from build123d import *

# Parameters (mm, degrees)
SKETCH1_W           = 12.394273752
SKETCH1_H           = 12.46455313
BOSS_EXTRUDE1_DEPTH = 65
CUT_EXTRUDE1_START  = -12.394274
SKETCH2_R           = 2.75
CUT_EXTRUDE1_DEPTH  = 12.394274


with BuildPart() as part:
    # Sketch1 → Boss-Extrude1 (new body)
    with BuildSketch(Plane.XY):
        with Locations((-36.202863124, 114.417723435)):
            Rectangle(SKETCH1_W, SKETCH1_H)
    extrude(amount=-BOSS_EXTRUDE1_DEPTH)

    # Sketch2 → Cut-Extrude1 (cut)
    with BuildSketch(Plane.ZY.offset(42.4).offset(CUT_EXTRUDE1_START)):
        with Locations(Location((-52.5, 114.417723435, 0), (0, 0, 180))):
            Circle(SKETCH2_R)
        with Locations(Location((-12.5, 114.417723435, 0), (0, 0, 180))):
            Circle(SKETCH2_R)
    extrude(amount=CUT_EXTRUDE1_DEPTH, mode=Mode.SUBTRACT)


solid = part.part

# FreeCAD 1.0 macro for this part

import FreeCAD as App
import Part
import Sketcher
Q = App.Units.Quantity

doc = App.newDocument("Part")
body = doc.addObject("PartDesign::Body", "Body")

# Sketch on XY plane
sketch1 = doc.addObject("Sketcher::SketchObject", "Sketch")
body.addObject(sketch1)
sketch1.AttachmentSupport = (doc.XY_Plane, [""])
sketch1.MapMode = "FlatFace"
sketch1.addGeometry(Part.LineSegment(App.Vector(-42, 121, 0), App.Vector(-42, 108, 0)), False)
sketch1.addGeometry(Part.LineSegment(App.Vector(-42, 108, 0), App.Vector(-30, 108, 0)), False)
sketch1.addGeometry(Part.LineSegment(App.Vector(-30, 108, 0), App.Vector(-30, 121, 0)), False)
sketch1.addGeometry(Part.LineSegment(App.Vector(-30, 121, 0), App.Vector(-42, 121, 0)), False)
sketch1.addConstraint(Sketcher.Constraint("Coincident", 0, 2, 1, 1))
sketch1.addConstraint(Sketcher.Constraint("Coincident", 1, 2, 2, 1))
sketch1.addConstraint(Sketcher.Constraint("Coincident", 2, 2, 3, 1))
sketch1.addConstraint(Sketcher.Constraint("Coincident", 3, 2, 0, 1))
sketch1.addConstraint(Sketcher.Constraint("Vertical", 0))
sketch1.addConstraint(Sketcher.Constraint("Horizontal", 1))
sketch1.addConstraint(Sketcher.Constraint("Vertical", 2))
sketch1.addConstraint(Sketcher.Constraint("Horizontal", 3))
sketch1.addConstraint(Sketcher.Constraint("DistanceX", 0, 2, -1, 1, Q("42.4 mm")))
sketch1.addConstraint(Sketcher.Constraint("DistanceY", -1, 1, 2, 2, Q("120.65 mm")))
sketch1.addConstraint(Sketcher.Constraint("DistanceX", 1, 1, 1, 2, Q("12.394274 mm")))
sketch1.addConstraint(Sketcher.Constraint("DistanceY", 0, 2, 0, 1, Q("12.464553 mm")))
pad1 = doc.addObject("PartDesign::Pad", "Pad")
body.addObject(pad1)
pad1.Profile = sketch1
pad1.Length = 65
pad1.Reversed = True

# Sketch on YZ plane
sketch2 = doc.addObject("Sketcher::SketchObject", "Sketch001")
body.addObject(sketch2)
sketch2.AttachmentSupport = (doc.YZ_Plane, [""])
sketch2.MapMode = "FlatFace"
sketch2.AttachmentOffset = App.Placement(App.Vector(0, 0, -30.005726), App.Rotation())
sketch2.addGeometry(Part.Circle(App.Vector(114.4, -52.5, 0), App.Vector(0, 0, 1), 2.8), False)
sketch2.addGeometry(Part.Circle(App.Vector(114.4, -12.5, 0), App.Vector(0, 0, 1), 2.8), False)
sketch2.addConstraint(Sketcher.Constraint("Equal", 0, 1))
sketch2.addConstraint(Sketcher.Constraint("Vertical", 0, 3, 1, 3))
sketch2.addConstraint(Sketcher.Constraint("Diameter", 0, Q("5.5 mm")))
sketch2.addConstraint(Sketcher.Constraint("DistanceY", 0, 3, 1, 3, Q("40 mm")))
sketch2.addConstraint(Sketcher.Constraint("DistanceY", 0, 3, -1, 1, Q("52.5 mm")))
sketch2.addConstraint(Sketcher.Constraint("DistanceX", -1, 1, 0, 3, Q("114.417723 mm")))
pocket1 = doc.addObject("PartDesign::Pocket", "Pocket")
body.addObject(pocket1)
pocket1.Profile = sketch2
pocket1.Length = 12.394274

doc.recompute()
